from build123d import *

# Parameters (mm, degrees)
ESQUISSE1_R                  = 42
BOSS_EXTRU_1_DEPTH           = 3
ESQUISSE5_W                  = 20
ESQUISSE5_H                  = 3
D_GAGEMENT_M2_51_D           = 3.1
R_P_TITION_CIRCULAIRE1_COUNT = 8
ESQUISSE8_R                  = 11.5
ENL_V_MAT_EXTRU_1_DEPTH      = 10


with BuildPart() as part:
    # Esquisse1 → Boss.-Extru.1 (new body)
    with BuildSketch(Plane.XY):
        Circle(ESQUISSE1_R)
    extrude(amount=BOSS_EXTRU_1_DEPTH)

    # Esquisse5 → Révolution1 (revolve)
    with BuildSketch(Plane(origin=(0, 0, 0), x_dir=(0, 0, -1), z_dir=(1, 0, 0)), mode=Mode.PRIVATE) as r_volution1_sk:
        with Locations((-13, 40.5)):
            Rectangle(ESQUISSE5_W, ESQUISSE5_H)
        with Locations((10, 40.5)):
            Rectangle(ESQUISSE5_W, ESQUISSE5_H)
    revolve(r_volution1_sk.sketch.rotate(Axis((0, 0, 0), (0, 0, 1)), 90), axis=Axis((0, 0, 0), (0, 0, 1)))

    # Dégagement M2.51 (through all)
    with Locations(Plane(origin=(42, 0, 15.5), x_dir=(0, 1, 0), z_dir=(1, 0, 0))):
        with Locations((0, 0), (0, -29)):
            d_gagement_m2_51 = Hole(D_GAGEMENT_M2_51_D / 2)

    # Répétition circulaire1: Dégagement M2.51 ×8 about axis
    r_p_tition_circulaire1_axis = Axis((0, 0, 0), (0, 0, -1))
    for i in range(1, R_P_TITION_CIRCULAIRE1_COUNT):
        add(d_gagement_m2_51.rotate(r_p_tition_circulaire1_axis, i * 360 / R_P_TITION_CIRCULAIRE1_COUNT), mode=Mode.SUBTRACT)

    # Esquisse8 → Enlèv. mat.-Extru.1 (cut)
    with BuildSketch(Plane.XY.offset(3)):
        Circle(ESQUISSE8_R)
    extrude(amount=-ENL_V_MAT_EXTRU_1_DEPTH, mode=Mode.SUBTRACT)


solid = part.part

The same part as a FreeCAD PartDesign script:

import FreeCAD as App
import Part
import Sketcher
from FreeCAD import Vector

doc = App.newDocument("Part")
body = doc.addObject("PartDesign::Body", "Body")

# Sketch on XY plane
sketch1 = body.newObject("Sketcher::SketchObject", "Sketch")
sketch1.AttachmentSupport = (doc.getObject("XY_Plane"), [""])
sketch1.MapMode = "FlatFace"
sketch1.addGeometry(Part.Circle(Vector(0, 0, 0), Vector(0, 0, 1), 42), False)
sketch1.addConstraint([
    Sketcher.Constraint("Coincident", 0, 3, -1, 1),
    Sketcher.Constraint("Diameter", 0, 84.0),
])
pad1 = body.newObject("PartDesign::Pad", "Pad")
pad1.Profile = sketch1
pad1.Length = 3

# Sketch on YZ plane
sketch2 = body.newObject("Sketcher::SketchObject", "Sketch001")
sketch2.AttachmentSupport = (doc.getObject("YZ_Plane"), [""])
sketch2.MapMode = "FlatFace"
sketch2.addGeometry([
    Part.LineSegment(Vector(42, 23, 0), Vector(39, 23, 0)),  # 0
    Part.LineSegment(Vector(39, 23, 0), Vector(39, 3, 0)),  # 1
    Part.LineSegment(Vector(39, 3, 0), Vector(42, 3, 0)),  # 2
    Part.LineSegment(Vector(42, 3, 0), Vector(42, 23, 0)),  # 3
    Part.LineSegment(Vector(42, 0, 0), Vector(39, 0, 0)),  # 4
    Part.LineSegment(Vector(39, 0, 0), Vector(39, -20, 0)),  # 5
    Part.LineSegment(Vector(39, -20, 0), Vector(42, -20, 0)),  # 6
    Part.LineSegment(Vector(42, -20, 0), Vector(42, 0, 0)),  # 7
], False)
sketch2.addConstraint([
    Sketcher.Constraint("Coincident", 0, 2, 1, 1),
    Sketcher.Constraint("Coincident", 1, 2, 2, 1),
    Sketcher.Constraint("Coincident", 2, 2, 3, 1),
    Sketcher.Constraint("Coincident", 3, 2, 0, 1),
    Sketcher.Constraint("Coincident", 4, 2, 5, 1),
    Sketcher.Constraint("Coincident", 5, 2, 6, 1),
    Sketcher.Constraint("Coincident", 6, 2, 7, 1),
    Sketcher.Constraint("Coincident", 7, 2, 4, 1),
    Sketcher.Constraint("Horizontal", 0),
    Sketcher.Constraint("Vertical", 1),
    Sketcher.Constraint("Horizontal", 2),
    Sketcher.Constraint("Vertical", 3),
    Sketcher.Constraint("Horizontal", 4),
    Sketcher.Constraint("Vertical", 5),
    Sketcher.Constraint("Horizontal", 6),
    Sketcher.Constraint("Vertical", 7),
    Sketcher.Constraint("PointOnObject", 4, 2, -1),
    Sketcher.Constraint("Vertical", 1, 2, 4, 2),
    Sketcher.Constraint("Vertical", 3, 2, 6, 2),
    Sketcher.Constraint("Equal", 3, 5),
    Sketcher.Constraint("DistanceX", 0, 2, 0, 1, 3.0),
    Sketcher.Constraint("DistanceY", 1, 2, 1, 1, 20.0),
    Sketcher.Constraint("DistanceX", -1, 1, 0, 2, 39.0),
    Sketcher.Constraint("DistanceY", -1, 1, 0, 2, 23.0),
])
revolution = body.newObject("PartDesign::Revolution", "Revolution")
revolution.Profile = sketch2
revolution.ReferenceAxis = (sketch2, ["V_Axis"])
revolution.Angle = 360

# Sketch on YZ plane
sketch3 = body.newObject("Sketcher::SketchObject", "Sketch002")
sketch3.AttachmentSupport = (doc.getObject("YZ_Plane"), [""])
sketch3.MapMode = "FlatFace"
sketch3.AttachmentOffset = App.Placement(Vector(0, 0, 42), App.Rotation())
sketch3.addGeometry([
    Part.Circle(Vector(0, 15.5, 0), Vector(0, 0, 1), 1.6),
    Part.Circle(Vector(0, -13.5, 0), Vector(0, 0, 1), 1.6),
], False)
sketch3.addConstraint([
    Sketcher.Constraint("Equal", 0, 1),
    Sketcher.Constraint("PointOnObject", 0, 3, -2),
    Sketcher.Constraint("PointOnObject", 1, 3, -2),
    Sketcher.Constraint("Diameter", 0, 3.1),
    Sketcher.Constraint("DistanceY", 1, 3, 0, 3, 29.0),
    Sketcher.Constraint("DistanceY", -1, 1, 0, 3, 15.5),
])
doc.recompute()
hole = body.newObject("PartDesign::Hole", "Hole")
hole.Profile = sketch3
hole.ThreadType = "None"
hole.Diameter = 3.1
hole.DepthType = "ThroughAll"
doc.recompute()

polarpattern = body.newObject("PartDesign::PolarPattern", "PolarPattern")
polarpattern.Originals = [hole]
polarpattern.Axis = (doc.getObject("Z_Axis"), [""])
polarpattern.Angle = 360
polarpattern.Occurrences = 8
body.Tip = polarpattern

# Sketch on XY plane
sketch4 = body.newObject("Sketcher::SketchObject", "Sketch003")
sketch4.AttachmentSupport = (doc.getObject("XY_Plane"), [""])
sketch4.MapMode = "FlatFace"
sketch4.AttachmentOffset = App.Placement(Vector(0, 0, 3), App.Rotation())
sketch4.addGeometry(Part.Circle(Vector(0, 0, 0), Vector(0, 0, 1), 12), False)
sketch4.addConstraint([
    Sketcher.Constraint("Coincident", 0, 3, -1, 1),
    Sketcher.Constraint("Diameter", 0, 23.0),
])
pocket1 = body.newObject("PartDesign::Pocket", "Pocket")
pocket1.Profile = sketch4
pocket1.Length = 10

doc.recompute()
